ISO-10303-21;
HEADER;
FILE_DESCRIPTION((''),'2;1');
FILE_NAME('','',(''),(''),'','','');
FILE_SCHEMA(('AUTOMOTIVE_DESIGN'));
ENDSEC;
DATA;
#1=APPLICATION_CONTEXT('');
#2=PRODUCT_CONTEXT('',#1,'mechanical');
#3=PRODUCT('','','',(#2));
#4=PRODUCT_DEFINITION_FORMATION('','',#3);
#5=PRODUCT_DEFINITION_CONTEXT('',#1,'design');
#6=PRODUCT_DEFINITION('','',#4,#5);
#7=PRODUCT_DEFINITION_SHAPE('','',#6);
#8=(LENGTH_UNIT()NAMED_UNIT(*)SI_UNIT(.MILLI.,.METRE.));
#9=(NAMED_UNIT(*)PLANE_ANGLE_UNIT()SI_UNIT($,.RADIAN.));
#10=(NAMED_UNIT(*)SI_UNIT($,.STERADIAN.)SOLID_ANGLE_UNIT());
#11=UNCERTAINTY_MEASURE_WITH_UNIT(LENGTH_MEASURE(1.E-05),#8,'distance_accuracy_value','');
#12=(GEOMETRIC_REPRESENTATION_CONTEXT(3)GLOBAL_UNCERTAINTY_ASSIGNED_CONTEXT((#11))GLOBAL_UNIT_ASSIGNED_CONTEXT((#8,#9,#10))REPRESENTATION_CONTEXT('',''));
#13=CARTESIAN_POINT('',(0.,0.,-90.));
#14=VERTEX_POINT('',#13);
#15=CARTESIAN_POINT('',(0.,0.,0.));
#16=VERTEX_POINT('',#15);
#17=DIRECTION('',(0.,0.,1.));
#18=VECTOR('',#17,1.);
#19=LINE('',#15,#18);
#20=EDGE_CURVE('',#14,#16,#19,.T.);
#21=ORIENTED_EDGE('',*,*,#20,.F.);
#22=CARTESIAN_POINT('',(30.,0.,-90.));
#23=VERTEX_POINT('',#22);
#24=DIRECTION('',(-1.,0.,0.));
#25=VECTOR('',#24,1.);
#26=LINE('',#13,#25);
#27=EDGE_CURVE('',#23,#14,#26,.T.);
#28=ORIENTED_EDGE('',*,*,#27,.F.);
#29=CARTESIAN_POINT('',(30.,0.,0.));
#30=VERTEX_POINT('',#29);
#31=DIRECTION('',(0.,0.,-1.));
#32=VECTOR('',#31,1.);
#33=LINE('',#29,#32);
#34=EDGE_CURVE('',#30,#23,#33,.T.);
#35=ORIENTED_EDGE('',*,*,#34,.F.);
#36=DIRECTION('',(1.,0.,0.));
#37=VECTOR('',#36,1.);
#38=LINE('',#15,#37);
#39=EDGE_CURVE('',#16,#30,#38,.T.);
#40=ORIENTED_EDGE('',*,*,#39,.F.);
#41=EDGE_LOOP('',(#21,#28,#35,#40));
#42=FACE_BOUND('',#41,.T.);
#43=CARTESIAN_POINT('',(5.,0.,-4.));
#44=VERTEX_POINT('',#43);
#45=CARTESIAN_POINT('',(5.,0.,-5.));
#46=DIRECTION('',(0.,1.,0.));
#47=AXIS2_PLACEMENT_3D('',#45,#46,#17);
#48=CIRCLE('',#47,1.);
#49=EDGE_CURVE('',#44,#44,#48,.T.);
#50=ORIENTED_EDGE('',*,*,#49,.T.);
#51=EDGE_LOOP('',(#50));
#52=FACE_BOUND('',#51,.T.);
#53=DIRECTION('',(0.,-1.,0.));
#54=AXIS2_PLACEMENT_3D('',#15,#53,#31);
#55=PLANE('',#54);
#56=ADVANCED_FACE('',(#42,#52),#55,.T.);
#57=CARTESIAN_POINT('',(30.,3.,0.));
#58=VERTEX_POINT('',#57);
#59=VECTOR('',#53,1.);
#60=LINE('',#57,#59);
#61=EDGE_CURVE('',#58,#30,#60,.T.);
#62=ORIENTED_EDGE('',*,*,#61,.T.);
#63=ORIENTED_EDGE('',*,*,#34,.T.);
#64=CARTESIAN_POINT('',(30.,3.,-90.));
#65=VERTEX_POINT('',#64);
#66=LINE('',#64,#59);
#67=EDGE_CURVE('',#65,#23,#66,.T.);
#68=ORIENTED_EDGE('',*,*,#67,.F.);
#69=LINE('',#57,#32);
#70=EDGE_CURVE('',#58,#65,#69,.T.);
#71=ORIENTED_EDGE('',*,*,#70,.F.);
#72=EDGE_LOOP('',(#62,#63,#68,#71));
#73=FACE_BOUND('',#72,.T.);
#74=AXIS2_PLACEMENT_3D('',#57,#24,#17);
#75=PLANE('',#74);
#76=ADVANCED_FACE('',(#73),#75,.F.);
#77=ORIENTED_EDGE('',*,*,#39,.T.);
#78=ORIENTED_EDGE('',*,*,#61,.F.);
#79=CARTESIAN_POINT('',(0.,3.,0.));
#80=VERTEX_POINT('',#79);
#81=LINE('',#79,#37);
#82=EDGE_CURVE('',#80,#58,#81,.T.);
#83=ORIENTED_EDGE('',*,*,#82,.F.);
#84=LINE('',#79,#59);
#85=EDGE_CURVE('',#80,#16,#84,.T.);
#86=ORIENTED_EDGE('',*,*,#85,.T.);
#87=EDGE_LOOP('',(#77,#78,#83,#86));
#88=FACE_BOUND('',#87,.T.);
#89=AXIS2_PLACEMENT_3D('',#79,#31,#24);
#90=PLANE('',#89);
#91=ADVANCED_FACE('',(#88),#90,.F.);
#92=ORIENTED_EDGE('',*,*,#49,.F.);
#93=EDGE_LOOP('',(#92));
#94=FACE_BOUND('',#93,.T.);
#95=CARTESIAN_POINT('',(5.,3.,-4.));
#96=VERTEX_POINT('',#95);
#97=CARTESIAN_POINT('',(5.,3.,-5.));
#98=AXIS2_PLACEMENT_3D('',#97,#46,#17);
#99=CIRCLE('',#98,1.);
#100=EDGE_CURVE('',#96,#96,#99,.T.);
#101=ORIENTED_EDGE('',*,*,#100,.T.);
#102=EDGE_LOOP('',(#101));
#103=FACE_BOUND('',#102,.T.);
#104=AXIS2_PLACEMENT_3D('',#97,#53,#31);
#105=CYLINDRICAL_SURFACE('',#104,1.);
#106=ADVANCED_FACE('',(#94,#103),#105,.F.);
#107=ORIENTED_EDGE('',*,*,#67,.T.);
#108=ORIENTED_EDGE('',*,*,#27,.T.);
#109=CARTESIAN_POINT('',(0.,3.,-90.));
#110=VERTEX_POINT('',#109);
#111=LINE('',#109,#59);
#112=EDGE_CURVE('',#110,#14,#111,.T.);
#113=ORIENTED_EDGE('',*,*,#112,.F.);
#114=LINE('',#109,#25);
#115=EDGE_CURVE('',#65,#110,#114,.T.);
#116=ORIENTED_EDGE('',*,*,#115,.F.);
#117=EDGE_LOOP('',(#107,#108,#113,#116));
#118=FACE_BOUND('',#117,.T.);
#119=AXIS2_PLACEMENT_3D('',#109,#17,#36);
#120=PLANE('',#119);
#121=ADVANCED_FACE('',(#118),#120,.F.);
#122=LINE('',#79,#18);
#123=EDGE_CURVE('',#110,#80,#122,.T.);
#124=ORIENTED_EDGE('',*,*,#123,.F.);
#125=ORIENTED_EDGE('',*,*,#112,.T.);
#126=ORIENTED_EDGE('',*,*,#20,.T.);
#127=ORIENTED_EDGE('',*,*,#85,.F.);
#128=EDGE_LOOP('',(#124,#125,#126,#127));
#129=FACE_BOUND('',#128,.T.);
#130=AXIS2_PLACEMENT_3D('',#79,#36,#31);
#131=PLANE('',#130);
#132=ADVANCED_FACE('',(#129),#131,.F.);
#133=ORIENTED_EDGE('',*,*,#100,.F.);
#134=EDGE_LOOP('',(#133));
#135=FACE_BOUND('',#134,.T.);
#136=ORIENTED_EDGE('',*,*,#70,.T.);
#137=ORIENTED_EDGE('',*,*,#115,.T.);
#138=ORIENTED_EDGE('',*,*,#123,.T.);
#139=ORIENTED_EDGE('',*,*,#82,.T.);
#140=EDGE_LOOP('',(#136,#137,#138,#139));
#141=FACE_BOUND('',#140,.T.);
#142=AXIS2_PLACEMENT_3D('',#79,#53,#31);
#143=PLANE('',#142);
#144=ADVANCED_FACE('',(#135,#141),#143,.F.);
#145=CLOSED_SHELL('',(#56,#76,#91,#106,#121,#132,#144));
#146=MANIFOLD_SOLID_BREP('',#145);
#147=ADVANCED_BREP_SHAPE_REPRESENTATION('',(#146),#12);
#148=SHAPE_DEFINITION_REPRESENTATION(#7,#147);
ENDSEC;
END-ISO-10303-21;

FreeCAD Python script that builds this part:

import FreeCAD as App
import Part
import Sketcher
Q = App.Units.Quantity


def add_polygon(sketch, points):
    """Adds a closed chain of lines whose ends are joined by coincident constraints."""
    first, n = sketch.GeometryCount, len(points)
    for a, b in zip(points, points[1:] + points[:1]):
        sketch.addGeometry(Part.LineSegment(App.Vector(*a, 0), App.Vector(*b, 0)), False)
    for i in range(n):
        sketch.addConstraint(Sketcher.Constraint("Coincident", first + i, 2, first + (i + 1) % n, 1))

doc = App.newDocument("Part")
params = doc.addObject("Spreadsheet::Sheet", "Params")
for row, (alias, value) in enumerate([
    ("sketch1_diameter", "2 mm"),
    ("sketch1_width", "30 mm"),
    ("sketch1_height", "90 mm"),
    ("pad1_length", "3 mm"),
], start=1):
    params.set(f"A{row}", alias)
    params.set(f"B{row}", "=" + value)
    params.setAlias(f"B{row}", alias)

body = doc.addObject("PartDesign::Body", "Body")

sketch1 = doc.addObject("Sketcher::SketchObject", "Sketch")
body.addObject(sketch1)
sketch1.AttachmentSupport = (doc.XZ_Plane, [""])
sketch1.MapMode = "FlatFace"
add_polygon(sketch1, [(0, -90), (0, 0), (30, 0), (30, -90)])
sketch1.addGeometry(Part.Circle(App.Vector(5, -5, 0), App.Vector(0, 0, 1), 1), False)
sketch1.addConstraint(Sketcher.Constraint("Vertical", 0))
sketch1.addConstraint(Sketcher.Constraint("Horizontal", 1))
sketch1.addConstraint(Sketcher.Constraint("Vertical", 2))
sketch1.addConstraint(Sketcher.Constraint("Horizontal", 3))
sketch1.addConstraint(Sketcher.Constraint("Coincident", 0, 2, -1, 1))
sketch1.addConstraint(Sketcher.Constraint("Diameter", 4, Q("2 mm")))
sketch1.addConstraint(Sketcher.Constraint("DistanceX", 1, 1, 1, 2, Q("30 mm")))
sketch1.addConstraint(Sketcher.Constraint("DistanceY", 0, 1, 0, 2, Q("90 mm")))
sketch1.addConstraint(Sketcher.Constraint("DistanceX", -1, 1, 4, 3, Q("5 mm")))
sketch1.addConstraint(Sketcher.Constraint("DistanceY", 4, 3, -1, 1, Q("5 mm")))
sketch1.setExpression("Constraints[9]", "Params.sketch1_diameter")
sketch1.setExpression("Constraints[10]", "Params.sketch1_width")
sketch1.setExpression("Constraints[11]", "Params.sketch1_height")
pad1 = doc.addObject("PartDesign::Pad", "Pad")
body.addObject(pad1)
pad1.Profile = sketch1
pad1.setExpression("Length", "Params.pad1_length")
pad1.Reversed = True

doc.recompute()
